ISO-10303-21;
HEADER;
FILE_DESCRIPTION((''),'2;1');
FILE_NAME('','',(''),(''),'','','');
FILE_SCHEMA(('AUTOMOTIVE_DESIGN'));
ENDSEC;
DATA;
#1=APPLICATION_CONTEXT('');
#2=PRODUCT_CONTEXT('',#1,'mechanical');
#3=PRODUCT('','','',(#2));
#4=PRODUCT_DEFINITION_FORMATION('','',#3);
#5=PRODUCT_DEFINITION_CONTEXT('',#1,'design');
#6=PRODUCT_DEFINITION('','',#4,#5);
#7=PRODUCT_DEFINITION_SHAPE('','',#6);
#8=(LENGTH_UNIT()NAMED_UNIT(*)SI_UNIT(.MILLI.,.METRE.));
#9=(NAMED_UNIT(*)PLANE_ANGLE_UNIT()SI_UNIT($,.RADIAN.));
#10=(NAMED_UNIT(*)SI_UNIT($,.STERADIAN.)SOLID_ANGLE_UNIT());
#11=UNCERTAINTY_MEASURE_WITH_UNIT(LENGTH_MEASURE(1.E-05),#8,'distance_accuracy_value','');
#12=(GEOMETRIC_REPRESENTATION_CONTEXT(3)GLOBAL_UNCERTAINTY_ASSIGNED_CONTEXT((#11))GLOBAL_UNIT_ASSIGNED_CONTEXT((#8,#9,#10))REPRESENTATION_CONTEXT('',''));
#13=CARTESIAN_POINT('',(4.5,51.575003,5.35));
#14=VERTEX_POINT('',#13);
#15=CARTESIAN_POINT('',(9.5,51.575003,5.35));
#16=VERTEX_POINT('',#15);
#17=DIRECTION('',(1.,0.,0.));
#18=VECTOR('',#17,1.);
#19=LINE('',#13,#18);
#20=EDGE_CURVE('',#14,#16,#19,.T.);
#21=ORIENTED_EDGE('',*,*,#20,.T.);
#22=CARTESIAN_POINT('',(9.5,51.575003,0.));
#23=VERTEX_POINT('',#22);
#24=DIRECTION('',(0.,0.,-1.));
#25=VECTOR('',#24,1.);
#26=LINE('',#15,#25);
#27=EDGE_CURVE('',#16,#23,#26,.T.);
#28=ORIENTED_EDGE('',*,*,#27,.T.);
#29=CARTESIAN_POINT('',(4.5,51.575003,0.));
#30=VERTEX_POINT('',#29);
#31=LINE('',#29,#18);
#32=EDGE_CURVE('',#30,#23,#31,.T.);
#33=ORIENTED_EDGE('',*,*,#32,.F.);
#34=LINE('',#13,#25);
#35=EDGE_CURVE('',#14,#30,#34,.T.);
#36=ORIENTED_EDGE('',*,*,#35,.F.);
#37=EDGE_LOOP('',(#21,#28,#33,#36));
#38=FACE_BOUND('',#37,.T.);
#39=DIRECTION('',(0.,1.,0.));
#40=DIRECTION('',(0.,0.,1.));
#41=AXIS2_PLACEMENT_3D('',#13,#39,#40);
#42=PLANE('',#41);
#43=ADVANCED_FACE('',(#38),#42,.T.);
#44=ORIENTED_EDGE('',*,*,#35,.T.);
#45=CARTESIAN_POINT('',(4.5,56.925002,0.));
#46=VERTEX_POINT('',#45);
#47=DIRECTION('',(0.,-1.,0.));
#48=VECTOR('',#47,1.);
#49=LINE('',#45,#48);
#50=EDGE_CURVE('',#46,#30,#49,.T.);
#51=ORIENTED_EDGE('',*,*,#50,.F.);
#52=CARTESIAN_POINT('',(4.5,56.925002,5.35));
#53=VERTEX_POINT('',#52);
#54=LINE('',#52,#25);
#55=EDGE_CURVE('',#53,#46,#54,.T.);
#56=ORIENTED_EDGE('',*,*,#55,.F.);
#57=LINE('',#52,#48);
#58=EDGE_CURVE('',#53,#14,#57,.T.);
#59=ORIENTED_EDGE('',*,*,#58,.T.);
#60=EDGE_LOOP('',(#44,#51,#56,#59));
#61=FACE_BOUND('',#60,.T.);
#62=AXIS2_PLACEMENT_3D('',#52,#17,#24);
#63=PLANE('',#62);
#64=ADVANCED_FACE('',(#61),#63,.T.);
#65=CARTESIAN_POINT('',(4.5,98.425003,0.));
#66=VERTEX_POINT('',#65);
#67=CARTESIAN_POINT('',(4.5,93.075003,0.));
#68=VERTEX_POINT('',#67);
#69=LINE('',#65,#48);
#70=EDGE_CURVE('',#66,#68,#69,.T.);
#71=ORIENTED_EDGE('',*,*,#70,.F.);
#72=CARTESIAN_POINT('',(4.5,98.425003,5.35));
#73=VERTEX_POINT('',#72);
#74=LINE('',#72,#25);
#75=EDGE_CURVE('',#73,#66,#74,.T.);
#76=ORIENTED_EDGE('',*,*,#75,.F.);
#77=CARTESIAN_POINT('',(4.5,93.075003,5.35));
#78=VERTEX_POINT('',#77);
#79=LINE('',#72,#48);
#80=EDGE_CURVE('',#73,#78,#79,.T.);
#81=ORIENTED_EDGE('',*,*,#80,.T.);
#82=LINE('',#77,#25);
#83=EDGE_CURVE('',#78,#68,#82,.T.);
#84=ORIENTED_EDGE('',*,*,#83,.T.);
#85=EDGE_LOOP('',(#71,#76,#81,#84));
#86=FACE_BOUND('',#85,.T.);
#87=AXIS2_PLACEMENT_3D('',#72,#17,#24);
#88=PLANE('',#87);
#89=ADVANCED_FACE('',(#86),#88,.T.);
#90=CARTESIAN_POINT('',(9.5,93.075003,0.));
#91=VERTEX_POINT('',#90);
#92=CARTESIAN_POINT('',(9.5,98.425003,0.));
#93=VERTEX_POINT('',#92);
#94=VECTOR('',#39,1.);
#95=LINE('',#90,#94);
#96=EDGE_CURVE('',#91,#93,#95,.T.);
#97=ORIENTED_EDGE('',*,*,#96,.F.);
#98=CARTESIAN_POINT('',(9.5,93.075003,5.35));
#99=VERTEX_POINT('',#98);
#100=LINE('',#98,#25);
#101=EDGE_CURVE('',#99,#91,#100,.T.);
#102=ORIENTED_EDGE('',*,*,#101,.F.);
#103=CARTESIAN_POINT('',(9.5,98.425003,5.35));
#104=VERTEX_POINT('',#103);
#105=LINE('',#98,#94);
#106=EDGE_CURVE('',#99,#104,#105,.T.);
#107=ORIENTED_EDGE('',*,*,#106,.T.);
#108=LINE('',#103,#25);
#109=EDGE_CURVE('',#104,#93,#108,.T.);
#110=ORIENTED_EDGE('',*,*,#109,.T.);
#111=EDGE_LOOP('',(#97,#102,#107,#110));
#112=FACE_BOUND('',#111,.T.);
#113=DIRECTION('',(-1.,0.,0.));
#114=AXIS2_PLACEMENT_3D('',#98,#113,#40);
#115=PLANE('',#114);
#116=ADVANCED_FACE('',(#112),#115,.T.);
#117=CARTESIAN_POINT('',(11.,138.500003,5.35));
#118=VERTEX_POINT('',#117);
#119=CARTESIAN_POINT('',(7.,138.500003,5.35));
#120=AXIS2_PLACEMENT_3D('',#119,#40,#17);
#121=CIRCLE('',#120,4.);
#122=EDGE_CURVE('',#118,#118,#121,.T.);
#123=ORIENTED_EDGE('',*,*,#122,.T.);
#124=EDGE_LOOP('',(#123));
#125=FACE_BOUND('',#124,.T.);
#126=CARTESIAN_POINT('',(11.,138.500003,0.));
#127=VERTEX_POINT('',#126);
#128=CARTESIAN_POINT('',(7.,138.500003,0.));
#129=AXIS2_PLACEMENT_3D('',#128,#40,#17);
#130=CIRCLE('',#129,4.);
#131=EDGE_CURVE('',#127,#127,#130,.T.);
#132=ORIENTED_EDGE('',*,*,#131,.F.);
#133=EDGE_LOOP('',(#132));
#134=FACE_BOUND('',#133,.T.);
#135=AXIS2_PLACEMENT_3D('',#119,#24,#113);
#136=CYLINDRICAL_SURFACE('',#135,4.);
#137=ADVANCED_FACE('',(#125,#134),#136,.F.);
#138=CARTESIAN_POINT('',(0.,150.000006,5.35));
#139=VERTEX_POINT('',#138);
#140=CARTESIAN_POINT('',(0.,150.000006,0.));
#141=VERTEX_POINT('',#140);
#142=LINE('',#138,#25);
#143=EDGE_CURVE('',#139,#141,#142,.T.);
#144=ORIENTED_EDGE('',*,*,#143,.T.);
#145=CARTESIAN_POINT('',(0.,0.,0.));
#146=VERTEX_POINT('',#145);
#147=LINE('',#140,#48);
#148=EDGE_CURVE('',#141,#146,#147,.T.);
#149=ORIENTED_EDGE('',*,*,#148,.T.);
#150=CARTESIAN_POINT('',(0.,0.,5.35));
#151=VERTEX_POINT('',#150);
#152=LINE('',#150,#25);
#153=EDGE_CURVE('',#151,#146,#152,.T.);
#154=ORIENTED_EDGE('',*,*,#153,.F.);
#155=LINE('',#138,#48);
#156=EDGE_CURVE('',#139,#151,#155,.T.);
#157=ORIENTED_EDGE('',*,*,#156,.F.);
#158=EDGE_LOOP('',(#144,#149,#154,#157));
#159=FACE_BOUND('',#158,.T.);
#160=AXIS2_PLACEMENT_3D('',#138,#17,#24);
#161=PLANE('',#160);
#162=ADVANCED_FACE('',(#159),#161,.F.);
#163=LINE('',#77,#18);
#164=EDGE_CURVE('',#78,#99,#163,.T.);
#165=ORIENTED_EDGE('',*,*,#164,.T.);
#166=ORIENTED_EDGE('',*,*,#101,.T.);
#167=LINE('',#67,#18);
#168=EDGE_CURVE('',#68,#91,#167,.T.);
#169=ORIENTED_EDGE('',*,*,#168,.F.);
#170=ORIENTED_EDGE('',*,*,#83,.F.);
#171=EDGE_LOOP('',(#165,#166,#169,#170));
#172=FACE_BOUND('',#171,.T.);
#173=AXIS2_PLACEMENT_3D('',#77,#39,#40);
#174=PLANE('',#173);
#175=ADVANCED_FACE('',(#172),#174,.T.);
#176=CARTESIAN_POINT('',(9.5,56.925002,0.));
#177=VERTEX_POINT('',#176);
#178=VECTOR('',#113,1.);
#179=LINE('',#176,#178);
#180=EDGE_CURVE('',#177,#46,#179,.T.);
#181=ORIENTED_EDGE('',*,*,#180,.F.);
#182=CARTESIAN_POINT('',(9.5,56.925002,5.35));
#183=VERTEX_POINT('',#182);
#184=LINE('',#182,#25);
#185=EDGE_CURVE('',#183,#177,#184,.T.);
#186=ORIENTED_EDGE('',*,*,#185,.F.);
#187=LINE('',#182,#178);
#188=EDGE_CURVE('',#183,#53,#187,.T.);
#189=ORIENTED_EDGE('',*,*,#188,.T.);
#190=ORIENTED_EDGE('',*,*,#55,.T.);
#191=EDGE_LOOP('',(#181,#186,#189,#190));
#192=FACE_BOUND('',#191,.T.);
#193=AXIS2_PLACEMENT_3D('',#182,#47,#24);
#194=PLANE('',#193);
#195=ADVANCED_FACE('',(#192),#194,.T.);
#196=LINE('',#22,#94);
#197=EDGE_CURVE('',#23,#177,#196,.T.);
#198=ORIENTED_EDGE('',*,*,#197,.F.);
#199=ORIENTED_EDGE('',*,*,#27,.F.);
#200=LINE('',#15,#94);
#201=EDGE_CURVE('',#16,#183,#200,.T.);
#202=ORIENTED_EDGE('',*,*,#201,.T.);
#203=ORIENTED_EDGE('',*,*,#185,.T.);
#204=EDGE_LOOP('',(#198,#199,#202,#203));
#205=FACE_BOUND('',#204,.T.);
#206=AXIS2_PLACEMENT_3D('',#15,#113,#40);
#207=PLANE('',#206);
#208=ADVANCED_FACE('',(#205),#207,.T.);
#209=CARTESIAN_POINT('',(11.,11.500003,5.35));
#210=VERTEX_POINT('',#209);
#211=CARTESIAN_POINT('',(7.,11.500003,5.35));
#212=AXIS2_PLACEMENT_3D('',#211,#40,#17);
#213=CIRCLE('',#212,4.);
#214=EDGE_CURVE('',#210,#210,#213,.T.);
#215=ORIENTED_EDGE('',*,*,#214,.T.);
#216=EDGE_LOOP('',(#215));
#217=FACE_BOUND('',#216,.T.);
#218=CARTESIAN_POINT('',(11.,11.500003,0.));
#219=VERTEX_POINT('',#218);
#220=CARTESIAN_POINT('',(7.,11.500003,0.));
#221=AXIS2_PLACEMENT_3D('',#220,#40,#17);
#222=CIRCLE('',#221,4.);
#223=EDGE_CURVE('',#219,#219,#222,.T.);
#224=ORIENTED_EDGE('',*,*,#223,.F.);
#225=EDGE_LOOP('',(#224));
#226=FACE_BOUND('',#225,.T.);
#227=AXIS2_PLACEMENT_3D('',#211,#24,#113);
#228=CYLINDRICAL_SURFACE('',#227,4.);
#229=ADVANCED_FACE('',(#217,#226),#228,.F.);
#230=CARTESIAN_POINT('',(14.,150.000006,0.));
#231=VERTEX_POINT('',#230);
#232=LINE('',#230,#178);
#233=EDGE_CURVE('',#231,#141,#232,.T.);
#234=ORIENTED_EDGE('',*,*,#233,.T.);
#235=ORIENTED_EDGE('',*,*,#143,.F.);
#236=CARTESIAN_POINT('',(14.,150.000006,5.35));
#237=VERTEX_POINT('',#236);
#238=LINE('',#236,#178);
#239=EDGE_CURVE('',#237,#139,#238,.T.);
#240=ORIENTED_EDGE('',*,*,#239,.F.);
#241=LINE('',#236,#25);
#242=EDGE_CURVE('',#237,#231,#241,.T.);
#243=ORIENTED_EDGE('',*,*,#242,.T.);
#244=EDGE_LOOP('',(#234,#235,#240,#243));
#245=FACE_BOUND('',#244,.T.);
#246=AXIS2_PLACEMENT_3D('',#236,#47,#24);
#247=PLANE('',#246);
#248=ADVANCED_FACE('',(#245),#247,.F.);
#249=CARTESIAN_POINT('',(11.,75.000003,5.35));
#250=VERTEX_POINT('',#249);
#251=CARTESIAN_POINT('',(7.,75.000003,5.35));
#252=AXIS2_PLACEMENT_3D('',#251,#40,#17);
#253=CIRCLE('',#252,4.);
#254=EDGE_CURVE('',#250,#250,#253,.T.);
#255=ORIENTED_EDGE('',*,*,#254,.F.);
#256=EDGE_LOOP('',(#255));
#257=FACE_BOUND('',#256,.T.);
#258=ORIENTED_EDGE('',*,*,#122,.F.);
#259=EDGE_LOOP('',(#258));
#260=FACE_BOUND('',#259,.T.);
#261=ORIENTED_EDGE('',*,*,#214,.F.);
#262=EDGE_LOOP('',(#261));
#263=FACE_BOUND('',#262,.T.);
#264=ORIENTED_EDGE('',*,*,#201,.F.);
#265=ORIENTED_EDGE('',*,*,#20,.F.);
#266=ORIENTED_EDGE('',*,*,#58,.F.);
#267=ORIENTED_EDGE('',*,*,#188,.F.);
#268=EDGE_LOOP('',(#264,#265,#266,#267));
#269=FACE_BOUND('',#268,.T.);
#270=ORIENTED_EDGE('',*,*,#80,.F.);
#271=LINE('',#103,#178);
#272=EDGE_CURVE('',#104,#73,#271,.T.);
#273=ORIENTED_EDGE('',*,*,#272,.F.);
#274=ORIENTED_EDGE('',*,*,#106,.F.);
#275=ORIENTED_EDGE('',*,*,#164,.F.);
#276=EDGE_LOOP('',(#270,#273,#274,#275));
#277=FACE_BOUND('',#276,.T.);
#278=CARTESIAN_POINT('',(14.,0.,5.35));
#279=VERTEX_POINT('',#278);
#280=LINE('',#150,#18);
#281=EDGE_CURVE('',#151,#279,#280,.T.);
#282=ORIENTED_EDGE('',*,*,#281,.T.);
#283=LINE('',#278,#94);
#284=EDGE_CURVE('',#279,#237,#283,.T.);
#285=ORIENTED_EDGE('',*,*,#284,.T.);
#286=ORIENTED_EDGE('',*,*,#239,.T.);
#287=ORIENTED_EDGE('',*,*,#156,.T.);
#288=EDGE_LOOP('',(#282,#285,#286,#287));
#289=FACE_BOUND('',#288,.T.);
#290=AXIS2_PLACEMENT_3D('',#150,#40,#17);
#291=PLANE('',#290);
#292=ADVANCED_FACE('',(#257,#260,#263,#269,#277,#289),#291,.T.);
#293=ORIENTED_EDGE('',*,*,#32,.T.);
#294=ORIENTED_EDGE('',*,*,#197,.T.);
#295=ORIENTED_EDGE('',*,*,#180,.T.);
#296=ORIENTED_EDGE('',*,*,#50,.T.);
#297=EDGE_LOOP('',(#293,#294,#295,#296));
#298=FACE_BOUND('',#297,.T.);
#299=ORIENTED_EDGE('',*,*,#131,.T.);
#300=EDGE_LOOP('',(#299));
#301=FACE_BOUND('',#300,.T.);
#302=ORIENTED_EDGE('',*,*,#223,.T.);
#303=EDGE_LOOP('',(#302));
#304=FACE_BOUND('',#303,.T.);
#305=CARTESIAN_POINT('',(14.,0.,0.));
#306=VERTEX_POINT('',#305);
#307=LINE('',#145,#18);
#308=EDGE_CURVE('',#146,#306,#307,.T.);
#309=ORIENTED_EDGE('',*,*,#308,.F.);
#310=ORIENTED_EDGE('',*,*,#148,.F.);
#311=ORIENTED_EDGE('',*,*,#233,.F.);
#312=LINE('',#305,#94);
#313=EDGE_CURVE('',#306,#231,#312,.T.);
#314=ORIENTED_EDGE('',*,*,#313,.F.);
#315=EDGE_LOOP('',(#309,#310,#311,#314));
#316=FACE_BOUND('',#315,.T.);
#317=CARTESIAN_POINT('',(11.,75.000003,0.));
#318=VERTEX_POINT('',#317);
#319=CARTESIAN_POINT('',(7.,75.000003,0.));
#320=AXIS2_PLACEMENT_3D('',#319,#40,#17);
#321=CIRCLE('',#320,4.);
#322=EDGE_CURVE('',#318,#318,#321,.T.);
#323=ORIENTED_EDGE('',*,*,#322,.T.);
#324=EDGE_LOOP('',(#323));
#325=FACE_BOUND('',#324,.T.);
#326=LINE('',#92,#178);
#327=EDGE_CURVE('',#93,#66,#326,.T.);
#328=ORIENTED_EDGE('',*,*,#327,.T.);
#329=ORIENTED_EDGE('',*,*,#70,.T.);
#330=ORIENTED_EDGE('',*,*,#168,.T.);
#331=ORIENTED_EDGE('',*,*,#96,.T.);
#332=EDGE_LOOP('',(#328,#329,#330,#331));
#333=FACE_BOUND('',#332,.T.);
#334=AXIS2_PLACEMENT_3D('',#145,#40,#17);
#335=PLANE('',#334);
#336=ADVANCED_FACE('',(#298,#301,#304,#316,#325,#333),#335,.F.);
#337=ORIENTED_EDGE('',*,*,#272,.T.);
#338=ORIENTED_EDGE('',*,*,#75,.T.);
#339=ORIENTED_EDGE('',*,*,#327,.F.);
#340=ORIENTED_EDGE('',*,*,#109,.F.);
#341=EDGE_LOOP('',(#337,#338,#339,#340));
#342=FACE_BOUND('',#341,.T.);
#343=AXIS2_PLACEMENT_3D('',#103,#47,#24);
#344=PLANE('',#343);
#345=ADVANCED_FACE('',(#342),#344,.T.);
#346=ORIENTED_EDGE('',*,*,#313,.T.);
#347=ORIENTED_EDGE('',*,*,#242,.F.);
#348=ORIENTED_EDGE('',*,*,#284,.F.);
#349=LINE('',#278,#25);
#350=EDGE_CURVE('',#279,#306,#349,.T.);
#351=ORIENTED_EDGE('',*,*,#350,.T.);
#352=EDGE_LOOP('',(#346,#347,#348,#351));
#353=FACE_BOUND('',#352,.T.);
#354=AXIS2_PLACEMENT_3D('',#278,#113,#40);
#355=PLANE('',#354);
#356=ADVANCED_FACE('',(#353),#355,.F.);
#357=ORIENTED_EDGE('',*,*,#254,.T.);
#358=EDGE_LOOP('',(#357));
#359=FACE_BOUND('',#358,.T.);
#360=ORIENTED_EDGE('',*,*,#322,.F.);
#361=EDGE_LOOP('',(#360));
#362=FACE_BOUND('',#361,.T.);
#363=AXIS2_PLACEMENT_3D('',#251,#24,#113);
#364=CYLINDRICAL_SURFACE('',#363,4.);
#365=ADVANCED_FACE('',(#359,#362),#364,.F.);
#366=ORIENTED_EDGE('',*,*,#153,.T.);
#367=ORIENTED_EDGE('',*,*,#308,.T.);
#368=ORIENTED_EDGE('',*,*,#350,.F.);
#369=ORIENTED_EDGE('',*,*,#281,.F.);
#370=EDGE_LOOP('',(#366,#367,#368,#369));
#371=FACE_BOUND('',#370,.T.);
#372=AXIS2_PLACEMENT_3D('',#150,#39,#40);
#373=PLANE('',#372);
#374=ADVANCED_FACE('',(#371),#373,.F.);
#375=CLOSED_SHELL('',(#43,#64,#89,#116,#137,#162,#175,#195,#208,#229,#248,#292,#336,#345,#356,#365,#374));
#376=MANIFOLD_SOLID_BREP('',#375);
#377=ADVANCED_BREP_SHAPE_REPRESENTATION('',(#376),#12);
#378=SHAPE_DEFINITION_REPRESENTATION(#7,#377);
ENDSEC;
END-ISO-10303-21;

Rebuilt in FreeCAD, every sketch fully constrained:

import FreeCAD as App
import Part
import Sketcher
from FreeCAD import Vector

doc = App.newDocument("Part")
body = doc.addObject("PartDesign::Body", "Body")

sketch1 = doc.addObject("Sketcher::SketchObject", "Sketch")
body.addObject(sketch1)
sketch1.AttachmentSupport = (doc.XY_Plane, [""])
sketch1.MapMode = "FlatFace"
sketch1.addGeometry([
    Part.LineSegment(Vector(0, 150, 0), Vector(0, 0, 0)),
    Part.LineSegment(Vector(0, 0, 0), Vector(14, 0, 0)),
    Part.LineSegment(Vector(14, 0, 0), Vector(14, 150, 0)),
    Part.LineSegment(Vector(14, 150, 0), Vector(0, 150, 0)),
    Part.Circle(Vector(7, 11.5, 0), Vector(0, 0, 1), 4),
    Part.LineSegment(Vector(9.5, 51.6, 0), Vector(4.5, 51.6, 0)),
    Part.LineSegment(Vector(4.5, 51.6, 0), Vector(4.5, 56.9, 0)),
    Part.LineSegment(Vector(4.5, 56.9, 0), Vector(9.5, 56.9, 0)),
    Part.LineSegment(Vector(9.5, 56.9, 0), Vector(9.5, 51.6, 0)),
    Part.Circle(Vector(7, 75, 0), Vector(0, 0, 1), 4),
    Part.LineSegment(Vector(9.5, 93.1, 0), Vector(4.5, 93.1, 0)),
    Part.LineSegment(Vector(4.5, 93.1, 0), Vector(4.5, 98.4, 0)),
    Part.LineSegment(Vector(4.5, 98.4, 0), Vector(9.5, 98.4, 0)),
    Part.LineSegment(Vector(9.5, 98.4, 0), Vector(9.5, 93.1, 0)),
    Part.Circle(Vector(7, 138.5, 0), Vector(0, 0, 1), 4),
], False)
sketch1.addConstraint([
    Sketcher.Constraint("Coincident", 0, 2, 1, 1),
    Sketcher.Constraint("Coincident", 1, 2, 2, 1),
    Sketcher.Constraint("Coincident", 2, 2, 3, 1),
    Sketcher.Constraint("Coincident", 3, 2, 0, 1),
    Sketcher.Constraint("Coincident", 5, 2, 6, 1),
    Sketcher.Constraint("Coincident", 6, 2, 7, 1),
    Sketcher.Constraint("Coincident", 7, 2, 8, 1),
    Sketcher.Constraint("Coincident", 8, 2, 5, 1),
    Sketcher.Constraint("Coincident", 10, 2, 11, 1),
    Sketcher.Constraint("Coincident", 11, 2, 12, 1),
    Sketcher.Constraint("Coincident", 12, 2, 13, 1),
    Sketcher.Constraint("Coincident", 13, 2, 10, 1),
    Sketcher.Constraint("Vertical", 0),
    Sketcher.Constraint("Horizontal", 1),
    Sketcher.Constraint("Vertical", 2),
    Sketcher.Constraint("Horizontal", 3),
    Sketcher.Constraint("Horizontal", 5),
    Sketcher.Constraint("Vertical", 6),
    Sketcher.Constraint("Horizontal", 7),
    Sketcher.Constraint("Vertical", 8),
    Sketcher.Constraint("Horizontal", 10),
    Sketcher.Constraint("Vertical", 11),
    Sketcher.Constraint("Horizontal", 12),
    Sketcher.Constraint("Vertical", 13),
    Sketcher.Constraint("Coincident", 0, 2, -1, 1),
    Sketcher.Constraint("Equal", 4, 9),
    Sketcher.Constraint("Equal", 9, 14),
    Sketcher.Constraint("Vertical", 4, 3, 9, 3),
    Sketcher.Constraint("Vertical", 9, 3, 14, 3),
    Sketcher.Constraint("Vertical", 6, 2, 10, 2),
    Sketcher.Constraint("Vertical", 8, 2, 12, 2),
    Sketcher.Constraint("Equal", 8, 11),
    Sketcher.Constraint("Diameter", 4, 8.0),
    Sketcher.Constraint("DistanceX", 1, 1, 1, 2, 14.0),
    Sketcher.Constraint("DistanceX", 5, 2, 5, 1, 5.0),
    Sketcher.Constraint("DistanceX", -1, 1, 4, 3, 7.0),
    Sketcher.Constraint("DistanceY", 4, 3, 14, 3, 127.0),
    Sketcher.Constraint("DistanceY", 6, 1, 6, 2, 5.349999),
    Sketcher.Constraint("DistanceX", -1, 1, 5, 2, 4.5),
    Sketcher.Constraint("DistanceY", 4, 3, 9, 3, 63.5),
    Sketcher.Constraint("DistanceY", 5, 2, 10, 2, 41.5),
    Sketcher.Constraint("DistanceY", 5, 2, 9, 3, 23.425),
    Sketcher.Constraint("DistanceY", 0, 2, 0, 1, 150.000006),
    Sketcher.Constraint("DistanceY", -1, 1, 4, 3, 11.500003),
])
pad1 = doc.addObject("PartDesign::Pad", "Pad")
body.addObject(pad1)
pad1.Profile = sketch1
pad1.Length = 5.35

doc.recompute()
